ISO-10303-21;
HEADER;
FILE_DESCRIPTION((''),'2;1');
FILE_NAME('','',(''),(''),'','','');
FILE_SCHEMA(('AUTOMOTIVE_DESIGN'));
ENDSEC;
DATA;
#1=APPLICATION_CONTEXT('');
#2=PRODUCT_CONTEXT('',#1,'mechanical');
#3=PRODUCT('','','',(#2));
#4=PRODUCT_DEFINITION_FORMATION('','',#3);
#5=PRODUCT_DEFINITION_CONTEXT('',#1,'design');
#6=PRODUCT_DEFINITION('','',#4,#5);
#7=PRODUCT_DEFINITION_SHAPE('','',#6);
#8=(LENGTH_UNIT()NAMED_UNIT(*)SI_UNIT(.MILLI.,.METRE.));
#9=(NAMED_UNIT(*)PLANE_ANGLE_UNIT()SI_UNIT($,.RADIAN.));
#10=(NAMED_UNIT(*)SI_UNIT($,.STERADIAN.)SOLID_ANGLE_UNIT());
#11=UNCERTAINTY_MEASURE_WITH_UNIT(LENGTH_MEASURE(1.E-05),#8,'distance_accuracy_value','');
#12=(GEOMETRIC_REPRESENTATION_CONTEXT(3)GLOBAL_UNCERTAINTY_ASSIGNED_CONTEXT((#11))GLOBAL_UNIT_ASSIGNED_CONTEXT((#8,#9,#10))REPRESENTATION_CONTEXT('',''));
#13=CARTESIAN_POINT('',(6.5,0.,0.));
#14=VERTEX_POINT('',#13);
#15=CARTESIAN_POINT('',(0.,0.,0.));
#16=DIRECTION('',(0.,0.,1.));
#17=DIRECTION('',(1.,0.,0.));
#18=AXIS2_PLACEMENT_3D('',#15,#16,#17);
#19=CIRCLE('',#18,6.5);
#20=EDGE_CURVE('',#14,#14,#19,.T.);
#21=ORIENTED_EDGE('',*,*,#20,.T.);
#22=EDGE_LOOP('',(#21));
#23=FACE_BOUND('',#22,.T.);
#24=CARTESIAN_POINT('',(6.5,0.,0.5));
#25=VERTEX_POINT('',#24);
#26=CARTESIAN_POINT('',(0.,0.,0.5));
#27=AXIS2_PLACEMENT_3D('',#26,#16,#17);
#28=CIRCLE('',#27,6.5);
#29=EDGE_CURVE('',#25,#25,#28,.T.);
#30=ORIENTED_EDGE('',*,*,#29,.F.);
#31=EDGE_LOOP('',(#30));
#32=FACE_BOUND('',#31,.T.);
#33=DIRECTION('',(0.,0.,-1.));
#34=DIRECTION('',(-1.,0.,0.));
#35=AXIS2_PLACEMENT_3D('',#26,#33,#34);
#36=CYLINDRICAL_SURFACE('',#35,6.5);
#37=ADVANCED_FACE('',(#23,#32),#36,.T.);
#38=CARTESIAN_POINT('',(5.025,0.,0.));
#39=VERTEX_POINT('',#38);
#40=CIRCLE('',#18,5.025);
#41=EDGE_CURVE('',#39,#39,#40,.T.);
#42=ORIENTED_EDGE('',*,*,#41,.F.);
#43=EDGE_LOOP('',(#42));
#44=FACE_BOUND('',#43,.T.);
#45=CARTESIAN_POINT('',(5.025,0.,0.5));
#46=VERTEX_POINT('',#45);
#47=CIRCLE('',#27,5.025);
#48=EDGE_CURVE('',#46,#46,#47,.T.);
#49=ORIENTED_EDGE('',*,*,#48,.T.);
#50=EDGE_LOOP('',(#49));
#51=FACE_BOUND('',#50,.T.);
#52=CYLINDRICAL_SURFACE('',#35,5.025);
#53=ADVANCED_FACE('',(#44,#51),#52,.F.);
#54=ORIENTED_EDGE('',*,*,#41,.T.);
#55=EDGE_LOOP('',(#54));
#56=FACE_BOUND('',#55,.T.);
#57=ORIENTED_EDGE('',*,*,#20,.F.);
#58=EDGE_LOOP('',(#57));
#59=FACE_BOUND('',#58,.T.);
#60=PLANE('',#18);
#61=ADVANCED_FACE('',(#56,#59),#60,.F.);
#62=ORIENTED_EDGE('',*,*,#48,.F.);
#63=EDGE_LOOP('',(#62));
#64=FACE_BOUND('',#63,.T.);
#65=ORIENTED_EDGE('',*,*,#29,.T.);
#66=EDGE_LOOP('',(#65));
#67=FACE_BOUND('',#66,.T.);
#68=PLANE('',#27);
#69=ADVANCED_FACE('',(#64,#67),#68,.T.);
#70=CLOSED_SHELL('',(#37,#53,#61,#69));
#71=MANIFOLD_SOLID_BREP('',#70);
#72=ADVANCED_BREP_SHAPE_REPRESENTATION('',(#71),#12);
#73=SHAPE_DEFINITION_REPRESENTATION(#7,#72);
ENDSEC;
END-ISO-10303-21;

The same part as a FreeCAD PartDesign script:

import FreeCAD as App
import Part
import Sketcher

V = App.Vector

doc = App.newDocument("Part")
body = doc.addObject("PartDesign::Body", "Body")

# Sketch on XY plane
sketch1 = body.newObject("Sketcher::SketchObject", "Sketch")
sketch1.AttachmentSupport = (doc.getObject("XY_Plane"), [""])
sketch1.MapMode = "FlatFace"
sketch1.addGeometry(Part.Circle(V(0, 0, 0), V(0, 0, 1), 6.5), False)
sketch1.addGeometry(Part.Circle(V(0, 0, 0), V(0, 0, 1), 5.025), False)
sketch1.addConstraint(Sketcher.Constraint("Coincident", 0, 3, -1, 1))
sketch1.addConstraint(Sketcher.Constraint("Coincident", 1, 3, -1, 1))
sketch1.addConstraint(Sketcher.Constraint("Diameter", 0, 13.0))
sketch1.addConstraint(Sketcher.Constraint("Diameter", 1, 10.05))
pad1 = body.newObject("PartDesign::Pad", "Pad")
pad1.Profile = sketch1
pad1.Length = 0.5

doc.recompute()
